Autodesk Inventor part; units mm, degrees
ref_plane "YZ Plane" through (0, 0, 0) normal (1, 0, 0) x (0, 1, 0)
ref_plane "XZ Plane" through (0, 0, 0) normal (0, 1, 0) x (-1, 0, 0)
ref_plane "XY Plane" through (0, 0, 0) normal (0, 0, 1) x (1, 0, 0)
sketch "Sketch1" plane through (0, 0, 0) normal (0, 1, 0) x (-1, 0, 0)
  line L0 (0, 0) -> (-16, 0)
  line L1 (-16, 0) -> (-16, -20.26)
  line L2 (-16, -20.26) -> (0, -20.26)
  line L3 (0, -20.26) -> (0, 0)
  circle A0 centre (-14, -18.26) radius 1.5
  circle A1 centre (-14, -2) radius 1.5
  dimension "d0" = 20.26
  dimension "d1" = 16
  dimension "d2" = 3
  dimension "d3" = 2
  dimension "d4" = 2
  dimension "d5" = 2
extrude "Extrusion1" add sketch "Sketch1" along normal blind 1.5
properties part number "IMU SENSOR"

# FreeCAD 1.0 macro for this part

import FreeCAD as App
import Part
import Sketcher
from FreeCAD import Vector


def add_polygon(sketch, points):
    """Adds a closed chain of lines whose ends are joined by coincident constraints."""
    first, n = sketch.GeometryCount, len(points)
    for a, b in zip(points, points[1:] + points[:1]):
        sketch.addGeometry(Part.LineSegment(App.Vector(*a, 0), App.Vector(*b, 0)), False)
    for i in range(n):
        sketch.addConstraint(Sketcher.Constraint("Coincident", first + i, 2, first + (i + 1) % n, 1))

doc = App.newDocument("Part")
params = doc.addObject("Spreadsheet::Sheet", "Params")
for row, (alias, value) in enumerate([
    ("sketch1_diameter", "3 mm"),
    ("sketch1_width", "16 mm"),
    ("sketch1_height", "20.26 mm"),
    ("pad1_length", "1.5 mm"),
], start=1):
    params.set(f"A{row}", alias)
    params.set(f"B{row}", "=" + value)
    params.setAlias(f"B{row}", alias)

body = doc.addObject("PartDesign::Body", "Body")

sketch1 = doc.addObject("Sketcher::SketchObject", "Sketch")
body.addObject(sketch1)
sketch1.AttachmentSupport = (doc.XZ_Plane, [""])
sketch1.MapMode = "FlatFace"
add_polygon(sketch1, [(0, -20.3), (0, 0), (16, 0), (16, -20.3)])
sketch1.addGeometry(Part.Circle(Vector(14, -18.3, 0), Vector(0, 0, 1), 1.5), False)
sketch1.addGeometry(Part.Circle(Vector(14, -2, 0), Vector(0, 0, 1), 1.5), False)
sketch1.addConstraint([
    Sketcher.Constraint("Vertical", 0),
    Sketcher.Constraint("Horizontal", 1),
    Sketcher.Constraint("Vertical", 2),
    Sketcher.Constraint("Horizontal", 3),
    Sketcher.Constraint("Coincident", 0, 2, -1, 1),
    Sketcher.Constraint("Equal", 4, 5),
    Sketcher.Constraint("Vertical", 4, 3, 5, 3),
    Sketcher.Constraint("Diameter", 4, 3.0),
    Sketcher.Constraint("DistanceX", 1, 1, 1, 2, 16.0),
    Sketcher.Constraint("DistanceY", 5, 3, -1, 1, 2.0),
    Sketcher.Constraint("DistanceX", 5, 3, 1, 2, 2.0),
    Sketcher.Constraint("DistanceY", 2, 2, 4, 3, 2.0),
    Sketcher.Constraint("DistanceY", 0, 1, 0, 2, 20.26),
])
sketch1.setExpression("Constraints[11]", "Params.sketch1_diameter")
sketch1.setExpression("Constraints[12]", "Params.sketch1_width")
sketch1.setExpression("Constraints[16]", "Params.sketch1_height")
pad1 = doc.addObject("PartDesign::Pad", "Pad")
body.addObject(pad1)
pad1.Profile = sketch1
pad1.setExpression("Length", "Params.pad1_length")
pad1.Reversed = True

doc.recompute()
